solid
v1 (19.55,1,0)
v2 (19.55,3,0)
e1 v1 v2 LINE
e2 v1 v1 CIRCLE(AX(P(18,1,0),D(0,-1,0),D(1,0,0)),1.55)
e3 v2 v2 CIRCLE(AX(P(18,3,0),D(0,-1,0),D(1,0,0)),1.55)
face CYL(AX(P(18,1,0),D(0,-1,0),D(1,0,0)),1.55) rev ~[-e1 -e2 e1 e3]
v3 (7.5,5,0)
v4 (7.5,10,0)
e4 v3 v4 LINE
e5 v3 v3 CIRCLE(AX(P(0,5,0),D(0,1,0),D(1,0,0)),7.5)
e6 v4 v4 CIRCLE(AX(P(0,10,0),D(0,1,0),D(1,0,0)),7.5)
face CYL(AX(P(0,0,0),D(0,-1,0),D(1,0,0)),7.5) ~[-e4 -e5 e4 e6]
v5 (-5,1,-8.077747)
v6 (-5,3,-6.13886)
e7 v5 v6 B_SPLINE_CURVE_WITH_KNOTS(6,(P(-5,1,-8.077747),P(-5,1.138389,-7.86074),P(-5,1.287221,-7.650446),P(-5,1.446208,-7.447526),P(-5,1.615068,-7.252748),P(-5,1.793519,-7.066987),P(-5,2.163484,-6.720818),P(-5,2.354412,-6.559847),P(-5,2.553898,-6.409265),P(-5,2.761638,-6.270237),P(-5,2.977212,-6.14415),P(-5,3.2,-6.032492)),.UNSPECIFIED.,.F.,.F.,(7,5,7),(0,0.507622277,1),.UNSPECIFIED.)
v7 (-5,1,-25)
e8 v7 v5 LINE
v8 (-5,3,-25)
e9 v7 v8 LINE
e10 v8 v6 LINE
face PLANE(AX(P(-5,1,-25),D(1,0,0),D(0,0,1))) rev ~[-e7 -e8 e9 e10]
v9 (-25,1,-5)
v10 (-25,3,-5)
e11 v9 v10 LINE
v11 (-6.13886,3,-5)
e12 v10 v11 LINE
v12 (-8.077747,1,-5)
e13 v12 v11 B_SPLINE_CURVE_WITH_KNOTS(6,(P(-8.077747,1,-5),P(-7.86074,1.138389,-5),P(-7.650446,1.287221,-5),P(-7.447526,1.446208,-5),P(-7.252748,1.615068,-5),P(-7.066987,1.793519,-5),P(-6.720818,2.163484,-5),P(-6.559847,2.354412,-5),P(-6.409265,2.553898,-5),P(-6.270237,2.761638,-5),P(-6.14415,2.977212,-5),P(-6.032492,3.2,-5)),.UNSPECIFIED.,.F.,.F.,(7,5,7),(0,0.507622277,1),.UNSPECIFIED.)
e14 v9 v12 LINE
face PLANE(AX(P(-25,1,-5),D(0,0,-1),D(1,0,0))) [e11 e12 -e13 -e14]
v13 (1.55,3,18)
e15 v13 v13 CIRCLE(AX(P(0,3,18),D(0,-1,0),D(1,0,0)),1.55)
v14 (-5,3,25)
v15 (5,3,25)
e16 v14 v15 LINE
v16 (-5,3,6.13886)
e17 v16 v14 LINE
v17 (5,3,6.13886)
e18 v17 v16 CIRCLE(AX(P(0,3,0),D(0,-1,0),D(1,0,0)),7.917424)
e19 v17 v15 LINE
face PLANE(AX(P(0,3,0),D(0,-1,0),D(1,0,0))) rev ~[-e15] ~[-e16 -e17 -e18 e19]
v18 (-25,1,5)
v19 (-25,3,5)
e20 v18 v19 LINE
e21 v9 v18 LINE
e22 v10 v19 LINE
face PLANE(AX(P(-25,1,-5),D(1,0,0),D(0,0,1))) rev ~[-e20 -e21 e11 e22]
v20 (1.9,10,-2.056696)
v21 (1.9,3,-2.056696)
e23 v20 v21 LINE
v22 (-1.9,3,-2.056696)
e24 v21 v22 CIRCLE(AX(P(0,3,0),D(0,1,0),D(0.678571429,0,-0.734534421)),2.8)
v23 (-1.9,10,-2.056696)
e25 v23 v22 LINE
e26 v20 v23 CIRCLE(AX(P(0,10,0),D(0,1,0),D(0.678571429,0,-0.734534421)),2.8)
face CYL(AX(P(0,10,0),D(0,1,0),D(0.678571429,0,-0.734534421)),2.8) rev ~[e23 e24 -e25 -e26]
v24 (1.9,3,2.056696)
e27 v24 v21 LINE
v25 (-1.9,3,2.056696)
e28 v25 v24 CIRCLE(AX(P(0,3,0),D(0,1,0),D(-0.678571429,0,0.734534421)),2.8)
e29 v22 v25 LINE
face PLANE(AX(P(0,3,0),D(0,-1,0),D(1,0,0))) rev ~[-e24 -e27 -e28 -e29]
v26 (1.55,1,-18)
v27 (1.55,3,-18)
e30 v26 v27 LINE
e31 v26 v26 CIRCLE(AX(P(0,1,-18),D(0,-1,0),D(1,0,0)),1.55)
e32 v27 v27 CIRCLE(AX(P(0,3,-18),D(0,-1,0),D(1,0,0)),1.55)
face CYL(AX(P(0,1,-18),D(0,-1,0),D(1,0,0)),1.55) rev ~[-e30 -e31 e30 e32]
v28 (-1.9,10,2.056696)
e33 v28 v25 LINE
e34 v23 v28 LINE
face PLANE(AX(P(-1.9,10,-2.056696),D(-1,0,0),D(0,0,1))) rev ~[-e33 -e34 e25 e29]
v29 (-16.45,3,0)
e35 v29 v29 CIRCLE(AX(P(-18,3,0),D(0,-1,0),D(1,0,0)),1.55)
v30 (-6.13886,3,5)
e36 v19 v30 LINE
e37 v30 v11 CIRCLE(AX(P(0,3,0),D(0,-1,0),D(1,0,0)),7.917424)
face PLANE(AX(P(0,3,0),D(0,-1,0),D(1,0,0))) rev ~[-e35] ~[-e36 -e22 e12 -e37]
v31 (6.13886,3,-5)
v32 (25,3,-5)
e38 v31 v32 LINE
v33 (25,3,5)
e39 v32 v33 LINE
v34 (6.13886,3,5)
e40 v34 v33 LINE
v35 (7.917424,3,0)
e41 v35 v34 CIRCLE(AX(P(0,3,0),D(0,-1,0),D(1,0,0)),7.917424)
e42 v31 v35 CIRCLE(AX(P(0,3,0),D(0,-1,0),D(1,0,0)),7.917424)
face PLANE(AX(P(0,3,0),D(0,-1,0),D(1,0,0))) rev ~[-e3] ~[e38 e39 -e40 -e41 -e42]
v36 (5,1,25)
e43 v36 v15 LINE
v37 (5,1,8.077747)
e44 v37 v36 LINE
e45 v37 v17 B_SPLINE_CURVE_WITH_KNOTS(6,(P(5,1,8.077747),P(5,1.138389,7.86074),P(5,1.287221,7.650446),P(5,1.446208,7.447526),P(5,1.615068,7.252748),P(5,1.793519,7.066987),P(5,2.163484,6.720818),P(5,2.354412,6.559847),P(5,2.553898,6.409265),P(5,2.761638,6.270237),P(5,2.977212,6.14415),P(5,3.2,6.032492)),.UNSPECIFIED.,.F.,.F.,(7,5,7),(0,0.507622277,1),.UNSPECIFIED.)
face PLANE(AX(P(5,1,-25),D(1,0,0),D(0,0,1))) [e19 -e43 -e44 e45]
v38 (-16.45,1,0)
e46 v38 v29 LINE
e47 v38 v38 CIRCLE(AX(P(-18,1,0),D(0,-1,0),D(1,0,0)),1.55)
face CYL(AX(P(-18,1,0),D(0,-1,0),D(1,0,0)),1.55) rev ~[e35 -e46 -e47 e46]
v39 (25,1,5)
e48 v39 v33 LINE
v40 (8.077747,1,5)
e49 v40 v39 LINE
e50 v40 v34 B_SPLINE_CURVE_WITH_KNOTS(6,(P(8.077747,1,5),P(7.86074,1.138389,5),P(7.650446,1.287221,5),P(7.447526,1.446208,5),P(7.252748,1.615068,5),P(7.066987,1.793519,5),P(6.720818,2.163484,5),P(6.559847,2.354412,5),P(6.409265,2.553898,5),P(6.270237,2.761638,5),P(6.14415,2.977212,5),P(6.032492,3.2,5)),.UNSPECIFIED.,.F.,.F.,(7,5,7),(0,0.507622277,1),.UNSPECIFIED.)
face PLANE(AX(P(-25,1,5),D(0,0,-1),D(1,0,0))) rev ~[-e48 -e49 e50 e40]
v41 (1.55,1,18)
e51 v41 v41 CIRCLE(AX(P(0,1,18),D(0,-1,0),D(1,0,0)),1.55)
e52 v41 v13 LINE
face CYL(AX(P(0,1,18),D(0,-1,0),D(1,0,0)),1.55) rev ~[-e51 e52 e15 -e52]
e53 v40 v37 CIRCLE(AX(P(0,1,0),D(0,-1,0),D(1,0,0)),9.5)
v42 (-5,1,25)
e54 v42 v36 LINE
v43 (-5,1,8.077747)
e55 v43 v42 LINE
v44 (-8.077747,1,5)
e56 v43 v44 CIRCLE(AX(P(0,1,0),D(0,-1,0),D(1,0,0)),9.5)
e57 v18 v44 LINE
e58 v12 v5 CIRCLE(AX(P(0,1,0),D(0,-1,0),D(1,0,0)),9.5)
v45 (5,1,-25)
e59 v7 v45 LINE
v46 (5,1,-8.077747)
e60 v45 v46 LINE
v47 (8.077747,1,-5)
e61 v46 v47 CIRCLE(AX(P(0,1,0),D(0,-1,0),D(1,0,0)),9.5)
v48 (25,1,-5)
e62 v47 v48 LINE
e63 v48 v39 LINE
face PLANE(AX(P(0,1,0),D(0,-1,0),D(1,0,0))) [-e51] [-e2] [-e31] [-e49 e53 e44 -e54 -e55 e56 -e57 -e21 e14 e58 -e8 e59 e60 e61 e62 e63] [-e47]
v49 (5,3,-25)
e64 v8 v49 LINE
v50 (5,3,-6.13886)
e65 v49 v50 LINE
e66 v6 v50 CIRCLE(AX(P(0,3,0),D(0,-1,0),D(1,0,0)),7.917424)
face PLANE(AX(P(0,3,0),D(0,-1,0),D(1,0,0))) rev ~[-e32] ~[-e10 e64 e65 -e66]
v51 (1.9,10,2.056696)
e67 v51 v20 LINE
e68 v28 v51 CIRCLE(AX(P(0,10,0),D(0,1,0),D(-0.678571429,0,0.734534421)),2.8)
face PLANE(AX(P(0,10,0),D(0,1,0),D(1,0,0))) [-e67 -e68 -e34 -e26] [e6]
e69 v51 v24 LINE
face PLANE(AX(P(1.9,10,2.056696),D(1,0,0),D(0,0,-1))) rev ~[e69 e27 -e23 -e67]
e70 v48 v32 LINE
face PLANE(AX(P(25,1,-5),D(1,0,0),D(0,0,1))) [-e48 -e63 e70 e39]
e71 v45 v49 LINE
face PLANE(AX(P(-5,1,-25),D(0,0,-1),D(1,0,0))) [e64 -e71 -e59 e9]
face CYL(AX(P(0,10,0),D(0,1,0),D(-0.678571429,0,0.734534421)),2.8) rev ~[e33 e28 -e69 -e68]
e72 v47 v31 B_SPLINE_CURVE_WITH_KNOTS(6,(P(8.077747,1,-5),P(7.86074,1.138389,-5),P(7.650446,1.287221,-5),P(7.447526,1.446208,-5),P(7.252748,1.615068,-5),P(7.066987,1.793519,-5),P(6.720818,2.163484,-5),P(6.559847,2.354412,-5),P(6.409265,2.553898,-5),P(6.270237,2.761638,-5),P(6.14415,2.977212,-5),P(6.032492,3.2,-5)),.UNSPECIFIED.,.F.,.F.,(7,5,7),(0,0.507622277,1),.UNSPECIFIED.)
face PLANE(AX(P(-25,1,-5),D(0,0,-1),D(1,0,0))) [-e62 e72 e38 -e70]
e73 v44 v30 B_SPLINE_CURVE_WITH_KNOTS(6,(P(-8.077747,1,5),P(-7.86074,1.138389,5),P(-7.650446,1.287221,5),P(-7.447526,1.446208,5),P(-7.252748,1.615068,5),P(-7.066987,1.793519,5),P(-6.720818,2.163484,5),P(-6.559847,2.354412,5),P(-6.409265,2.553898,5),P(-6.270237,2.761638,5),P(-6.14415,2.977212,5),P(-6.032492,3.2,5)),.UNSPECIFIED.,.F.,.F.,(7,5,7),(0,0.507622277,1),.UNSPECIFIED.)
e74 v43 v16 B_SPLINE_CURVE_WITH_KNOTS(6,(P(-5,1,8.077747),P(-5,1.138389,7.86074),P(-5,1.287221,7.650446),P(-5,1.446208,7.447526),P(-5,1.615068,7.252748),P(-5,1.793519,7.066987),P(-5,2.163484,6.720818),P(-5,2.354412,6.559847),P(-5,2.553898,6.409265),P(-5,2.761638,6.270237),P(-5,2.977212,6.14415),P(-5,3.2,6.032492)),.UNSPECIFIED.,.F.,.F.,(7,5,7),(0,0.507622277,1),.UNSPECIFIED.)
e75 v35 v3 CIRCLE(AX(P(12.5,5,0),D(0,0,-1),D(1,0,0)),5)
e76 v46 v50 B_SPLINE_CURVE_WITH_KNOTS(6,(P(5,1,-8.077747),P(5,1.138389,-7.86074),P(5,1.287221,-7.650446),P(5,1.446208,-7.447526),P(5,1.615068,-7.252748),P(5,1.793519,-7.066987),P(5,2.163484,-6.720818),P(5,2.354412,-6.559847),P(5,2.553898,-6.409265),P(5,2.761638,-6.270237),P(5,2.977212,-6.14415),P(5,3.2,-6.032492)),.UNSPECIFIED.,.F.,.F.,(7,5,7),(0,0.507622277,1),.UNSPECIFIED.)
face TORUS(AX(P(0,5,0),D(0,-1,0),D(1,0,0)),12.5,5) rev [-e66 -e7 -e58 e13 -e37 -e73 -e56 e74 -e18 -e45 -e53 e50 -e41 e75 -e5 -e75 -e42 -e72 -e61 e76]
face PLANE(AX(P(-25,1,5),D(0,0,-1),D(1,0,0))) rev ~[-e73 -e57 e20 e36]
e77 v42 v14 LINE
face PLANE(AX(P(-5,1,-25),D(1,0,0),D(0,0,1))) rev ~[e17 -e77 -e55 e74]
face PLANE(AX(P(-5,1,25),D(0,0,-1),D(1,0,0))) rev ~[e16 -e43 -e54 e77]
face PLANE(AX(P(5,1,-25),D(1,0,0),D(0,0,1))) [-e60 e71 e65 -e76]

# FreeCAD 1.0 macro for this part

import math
import FreeCAD as App
import Part
import Sketcher

V = App.Vector


def edges_at(feature, points):
    """Names of the edges that pass closest to the given points."""
    edges = feature.Shape.Edges
    near = lambda p: min(range(len(edges)), key=lambda i: edges[i].distToShape(Part.Vertex(*p))[0])
    return sorted({f"Edge{near(p) + 1}" for p in points})


def add_polygon(sketch, points):
    """Adds a closed chain of lines whose ends are joined by coincident constraints."""
    first, n = sketch.GeometryCount, len(points)
    for a, b in zip(points, points[1:] + points[:1]):
        sketch.addGeometry(Part.LineSegment(App.Vector(*a, 0), App.Vector(*b, 0)), False)
    for i in range(n):
        sketch.addConstraint(Sketcher.Constraint("Coincident", first + i, 2, first + (i + 1) % n, 1))

doc = App.newDocument("Part")
body = doc.addObject("PartDesign::Body", "Body")

sketch1 = body.newObject("Sketcher::SketchObject", "Sketch")
sketch1.AttachmentSupport = (doc.getObject("XZ_Plane"), [""])
sketch1.MapMode = "FlatFace"
sketch1.addGeometry(Part.Circle(V(0, 0, 0), V(0, 0, 1), 8), False)
sketch1.addConstraint([
    Sketcher.Constraint("Coincident", 0, 3, -1, 1),
    Sketcher.Constraint("Diameter", 0, 15.0),
])
pad1 = body.newObject("PartDesign::Pad", "Pad")
pad1.Profile = sketch1
pad1.Length = 10
pad1.Reversed = True

sketch2 = body.newObject("Sketcher::SketchObject", "Sketch001")
sketch2.AttachmentSupport = (doc.getObject("XZ_Plane"), [""])
sketch2.MapMode = "FlatFace"
sketch2.AttachmentOffset = App.Placement(V(0, 0, -10), App.Rotation())
sketch2.addGeometry([
    Part.LineSegment(V(-1.9, -2.1, 0), V(-1.9, 2.1, 0)),
    Part.ArcOfCircle(Part.Circle(V(0, 0, 0), V(0, 0, 1), 2.8), math.radians(47), math.radians(133)),
    Part.LineSegment(V(1.9, 2.1, 0), V(1.9, -2.1, 0)),
    Part.ArcOfCircle(Part.Circle(V(0, 0, 0), V(0, 0, 1), 2.8), math.radians(-133), math.radians(-47)),
], False)
sketch2.addConstraint([
    Sketcher.Constraint("Coincident", 0, 2, 1, 2),
    Sketcher.Constraint("Coincident", 1, 1, 2, 1),
    Sketcher.Constraint("Coincident", 2, 2, 3, 2),
    Sketcher.Constraint("Coincident", 3, 1, 0, 1),
    Sketcher.Constraint("Vertical", 0),
    Sketcher.Constraint("Vertical", 2),
    Sketcher.Constraint("Coincident", 1, 3, -1, 1),
    Sketcher.Constraint("Coincident", 3, 3, -1, 1),
    Sketcher.Constraint("Equal", 1, 3),
    Sketcher.Constraint("Horizontal", 0, 2, 1, 1),
    Sketcher.Constraint("Radius", 1, 2.8),
    Sketcher.Constraint("DistanceX", 0, 2, -1, 1, 1.9),
])
pocket1 = body.newObject("PartDesign::Pocket", "Pocket")
pocket1.Profile = sketch2
pocket1.Length = 10
pocket1.Reversed = True

sketch3 = body.newObject("Sketcher::SketchObject", "Sketch002")
sketch3.AttachmentSupport = (doc.getObject("XZ_Plane"), [""])
sketch3.MapMode = "FlatFace"
sketch3.addGeometry(Part.Circle(V(0, 0, 0), V(0, 0, 1), 30), False)
sketch3.addConstraint([
    Sketcher.Constraint("Coincident", 0, 3, -1, 1),
    Sketcher.Constraint("Diameter", 0, 60.0),
])
pad2 = body.newObject("PartDesign::Pad", "Pad001")
pad2.Profile = sketch3
pad2.Length = 9
doc.recompute()

fillet = body.newObject("PartDesign::Fillet", "Fillet")
fillet.Base = (pad2, edges_at(pad2, [(-7.5, 0, 0)]))
fillet.Radius = 5

sketch4 = body.newObject("Sketcher::SketchObject", "Sketch003")
sketch4.AttachmentSupport = (doc.getObject("XZ_Plane"), [""])
sketch4.MapMode = "FlatFace"
sketch4.addGeometry([
    Part.ArcOfCircle(Part.Circle(V(0, 0, 0), V(0, 0, 1), 15), math.radians(112), math.radians(158)),
    Part.ArcOfCircle(Part.Circle(V(-20, 8, 0), V(0, 0, 1), 6), math.radians(158), math.radians(338)),
    Part.ArcOfCircle(Part.Circle(V(0, 0, 0), V(0, 0, 1), 27), math.radians(112), math.radians(158)),
    Part.ArcOfCircle(Part.Circle(V(-8, 20, 0), V(0, 0, 1), 6), math.radians(-68), math.radians(112)),
    Part.ArcOfCircle(Part.Circle(V(-8, -20, 0), V(0, 0, 1), 6), math.radians(-112), math.radians(68)),
    Part.ArcOfCircle(Part.Circle(V(0, 0, 0), V(0, 0, 1), 27), math.radians(-158), math.radians(-112)),
    Part.ArcOfCircle(Part.Circle(V(-20, -8, 0), V(0, 0, 1), 6), math.radians(22), math.radians(202)),
    Part.ArcOfCircle(Part.Circle(V(0, 0, 0), V(0, 0, 1), 15), math.radians(-158), math.radians(-112)),
    Part.ArcOfCircle(Part.Circle(V(8, -20, 0), V(0, 0, 1), 6), math.radians(112), math.radians(292)),
    Part.ArcOfCircle(Part.Circle(V(0, 0, 0), V(0, 0, 1), 15), math.radians(-68), math.radians(-22)),
    Part.ArcOfCircle(Part.Circle(V(20, -8, 0), V(0, 0, 1), 6), math.radians(-22), math.radians(158)),
    Part.ArcOfCircle(Part.Circle(V(0, 0, 0), V(0, 0, 1), 27), math.radians(-68), math.radians(-22)),
    Part.ArcOfCircle(Part.Circle(V(8, 20, 0), V(0, 0, 1), 6), math.radians(68), math.radians(248)),
    Part.ArcOfCircle(Part.Circle(V(0, 0, 0), V(0, 0, 1), 27), math.radians(22), math.radians(68)),
    Part.ArcOfCircle(Part.Circle(V(20, 8, 0), V(0, 0, 1), 6), math.radians(-158), math.radians(22)),
    Part.ArcOfCircle(Part.Circle(V(0, 0, 0), V(0, 0, 1), 15), math.radians(22), math.radians(68)),
], False)
sketch4.addConstraint([
    Sketcher.Constraint("Tangent", 0, 2, 1, 2),
    Sketcher.Constraint("Tangent", 1, 1, 2, 2),
    Sketcher.Constraint("Tangent", 2, 1, 3, 2),
    Sketcher.Constraint("Tangent", 3, 1, 0, 1),
    Sketcher.Constraint("Tangent", 4, 1, 5, 2),
    Sketcher.Constraint("Tangent", 5, 1, 6, 2),
    Sketcher.Constraint("Tangent", 6, 1, 7, 1),
    Sketcher.Constraint("Tangent", 7, 2, 4, 2),
    Sketcher.Constraint("Tangent", 8, 1, 9, 1),
    Sketcher.Constraint("Tangent", 9, 2, 10, 2),
    Sketcher.Constraint("Tangent", 10, 1, 11, 2),
    Sketcher.Constraint("Tangent", 11, 1, 8, 2),
    Sketcher.Constraint("Tangent", 12, 1, 13, 2),
    Sketcher.Constraint("Tangent", 13, 1, 14, 2),
    Sketcher.Constraint("Tangent", 14, 1, 15, 1),
    Sketcher.Constraint("Tangent", 15, 2, 12, 2),
    Sketcher.Constraint("Coincident", 0, 3, -1, 1),
    Sketcher.Constraint("Coincident", 2, 3, -1, 1),
    Sketcher.Constraint("Coincident", 5, 3, -1, 1),
    Sketcher.Constraint("Coincident", 7, 3, -1, 1),
    Sketcher.Constraint("Coincident", 9, 3, -1, 1),
    Sketcher.Constraint("Coincident", 11, 3, -1, 1),
    Sketcher.Constraint("Coincident", 13, 3, -1, 1),
    Sketcher.Constraint("Coincident", 15, 3, -1, 1),
    Sketcher.Constraint("Equal", 3, 4),
    Sketcher.Constraint("Equal", 2, 5),
    Sketcher.Constraint("Equal", 6, 8),
    Sketcher.Constraint("Equal", 7, 9),
    Sketcher.Constraint("Equal", 10, 12),
    Sketcher.Constraint("Equal", 11, 13),
    Sketcher.Constraint("Horizontal", 4, 3, 8, 3),
    Sketcher.Constraint("Horizontal", 6, 3, 10, 3),
    Sketcher.Constraint("Horizontal", 3, 3, 12, 3),
    Sketcher.Constraint("Horizontal", 1, 3, 14, 3),
    Sketcher.Constraint("Vertical", 3, 3, 4, 3),
    Sketcher.Constraint("Vertical", 1, 3, 6, 3),
    Sketcher.Constraint("Radius", 0, 15.0),
    Sketcher.Constraint("Radius", 2, 27.5),
    Sketcher.Constraint("DistanceY", -1, 1, 1, 3, 8.0),
    Sketcher.Constraint("DistanceX", 3, 3, -1, 1, 8.0),
])
pocket2 = body.newObject("PartDesign::Pocket", "Pocket001")
pocket2.Profile = sketch4
pocket2.Length = 10
pocket2.Reversed = True
doc.recompute()

fillet2 = body.newObject("PartDesign::Fillet", "Fillet001")
fillet2.Base = (pocket2, edges_at(pocket2, [(-30, 0, 0), (-30, -9, 0)]))
fillet2.Radius = 2

sketch5 = body.newObject("Sketcher::SketchObject", "Sketch004")
sketch5.AttachmentSupport = (doc.getObject("XZ_Plane"), [""])
sketch5.MapMode = "FlatFace"
sketch5.AttachmentOffset = App.Placement(V(0, 0, 9), App.Rotation())
sketch5.addGeometry(Part.Circle(V(0, 0, 0), V(0, 0, 1), 40), False)
sketch5.addConstraint([
    Sketcher.Constraint("Coincident", 0, 3, -1, 1),
    Sketcher.Constraint("Diameter", 0, 79.755322),
])
pocket3 = body.newObject("PartDesign::Pocket", "Pocket002")
pocket3.Profile = sketch5
pocket3.Length = 10

sketch6 = body.newObject("Sketcher::SketchObject", "Sketch005")
sketch6.AttachmentSupport = (doc.getObject("XZ_Plane"), [""])
sketch6.MapMode = "FlatFace"
sketch6.AttachmentOffset = App.Placement(V(0, 0, -1), App.Rotation())
add_polygon(sketch6, [(-5, 25), (-5, -25), (5, -25), (5, 25)])
sketch6.addConstraint([
    Sketcher.Constraint("Vertical", 0),
    Sketcher.Constraint("Horizontal", 1),
    Sketcher.Constraint("Vertical", 2),
    Sketcher.Constraint("Horizontal", 3),
    Sketcher.Constraint("Symmetric", 0, 2, 2, 2, -1, 1),
    Sketcher.Constraint("DistanceX", 1, 1, 1, 2, 10.0),
    Sketcher.Constraint("DistanceY", 0, 2, 0, 1, 50.0),
])
pad3 = body.newObject("PartDesign::Pad", "Pad002")
pad3.Profile = sketch6
pad3.Length = 2
pad3.Reversed = True

sketch7 = body.newObject("Sketcher::SketchObject", "Sketch006")
sketch7.AttachmentSupport = (doc.getObject("XZ_Plane"), [""])
sketch7.MapMode = "FlatFace"
sketch7.AttachmentOffset = App.Placement(V(0, 0, -1), App.Rotation())
add_polygon(sketch7, [(-25, 5), (-25, -5), (25, -5), (25, 5)])
sketch7.addConstraint([
    Sketcher.Constraint("Vertical", 0),
    Sketcher.Constraint("Horizontal", 1),
    Sketcher.Constraint("Vertical", 2),
    Sketcher.Constraint("Horizontal", 3),
    Sketcher.Constraint("Symmetric", 0, 2, 2, 2, -1, 1),
    Sketcher.Constraint("DistanceX", 1, 1, 1, 2, 50.0),
    Sketcher.Constraint("DistanceY", 0, 2, 0, 1, 10.0),
])
pad4 = body.newObject("PartDesign::Pad", "Pad003")
pad4.Profile = sketch7
pad4.Length = 2
pad4.Reversed = True

sketch8 = body.newObject("Sketcher::SketchObject", "Sketch007")
sketch8.AttachmentSupport = (doc.getObject("XZ_Plane"), [""])
sketch8.MapMode = "FlatFace"
sketch8.AttachmentOffset = App.Placement(V(0, 0, -1), App.Rotation())
sketch8.addGeometry([
    Part.Circle(V(-18, 0, 0), V(0, 0, 1), 1.6),
    Part.Circle(V(0, 18, 0), V(0, 0, 1), 1.6),
    Part.Circle(V(0, -18, 0), V(0, 0, 1), 1.6),
    Part.Circle(V(18, 0, 0), V(0, 0, 1), 1.6),
], False)
sketch8.addConstraint([
    Sketcher.Constraint("Equal", 0, 1),
    Sketcher.Constraint("Equal", 1, 2),
    Sketcher.Constraint("Equal", 2, 3),
    Sketcher.Constraint("Symmetric", 1, 3, 2, 3, -1, 1),
    Sketcher.Constraint("Symmetric", 0, 3, 3, 3, -1, 1),
    Sketcher.Constraint("PointOnObject", 0, 3, -1),
    Sketcher.Constraint("PointOnObject", 1, 3, -2),
    Sketcher.Constraint("Diameter", 0, 3.1),
    Sketcher.Constraint("DistanceX", 0, 3, -1, 1, 18.0),
    Sketcher.Constraint("DistanceY", -1, 1, 1, 3, 18.0),
])
pocket4 = body.newObject("PartDesign::Pocket", "Pocket003")
pocket4.Profile = sketch8
pocket4.Length = 2

doc.recompute()
